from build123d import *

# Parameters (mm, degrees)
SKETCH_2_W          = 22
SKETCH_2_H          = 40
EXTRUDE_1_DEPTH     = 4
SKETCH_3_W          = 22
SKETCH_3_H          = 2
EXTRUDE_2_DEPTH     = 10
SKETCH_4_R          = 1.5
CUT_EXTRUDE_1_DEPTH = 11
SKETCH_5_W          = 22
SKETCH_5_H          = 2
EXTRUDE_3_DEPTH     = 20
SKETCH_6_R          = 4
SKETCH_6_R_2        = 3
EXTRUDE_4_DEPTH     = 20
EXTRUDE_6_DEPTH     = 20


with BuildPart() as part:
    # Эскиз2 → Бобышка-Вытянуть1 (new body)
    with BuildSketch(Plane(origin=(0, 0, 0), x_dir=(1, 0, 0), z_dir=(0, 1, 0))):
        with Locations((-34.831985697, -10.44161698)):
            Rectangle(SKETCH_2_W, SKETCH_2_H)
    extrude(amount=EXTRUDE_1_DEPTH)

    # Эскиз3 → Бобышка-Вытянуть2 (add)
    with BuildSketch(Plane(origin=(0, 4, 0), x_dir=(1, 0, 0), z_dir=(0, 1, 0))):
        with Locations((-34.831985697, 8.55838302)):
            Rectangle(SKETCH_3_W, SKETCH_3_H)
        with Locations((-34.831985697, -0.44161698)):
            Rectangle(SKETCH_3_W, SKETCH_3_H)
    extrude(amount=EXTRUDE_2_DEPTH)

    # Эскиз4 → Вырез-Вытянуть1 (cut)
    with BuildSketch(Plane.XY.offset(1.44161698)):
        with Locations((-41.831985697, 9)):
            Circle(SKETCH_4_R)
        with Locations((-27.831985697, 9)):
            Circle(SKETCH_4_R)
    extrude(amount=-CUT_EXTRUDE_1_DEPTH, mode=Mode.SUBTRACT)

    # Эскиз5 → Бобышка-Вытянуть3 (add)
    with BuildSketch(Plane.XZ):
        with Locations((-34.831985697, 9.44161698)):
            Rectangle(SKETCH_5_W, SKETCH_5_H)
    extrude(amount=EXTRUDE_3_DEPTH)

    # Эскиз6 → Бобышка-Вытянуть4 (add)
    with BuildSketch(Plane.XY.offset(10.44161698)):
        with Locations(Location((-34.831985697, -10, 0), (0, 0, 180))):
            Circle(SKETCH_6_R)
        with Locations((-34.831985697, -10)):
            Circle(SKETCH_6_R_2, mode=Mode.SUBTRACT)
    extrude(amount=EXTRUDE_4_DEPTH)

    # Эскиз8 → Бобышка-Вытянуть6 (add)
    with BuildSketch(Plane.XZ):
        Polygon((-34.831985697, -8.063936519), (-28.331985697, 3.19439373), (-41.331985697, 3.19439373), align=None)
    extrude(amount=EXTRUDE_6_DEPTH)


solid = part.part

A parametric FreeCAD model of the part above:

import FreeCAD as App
import Part
import Sketcher
Q = App.Units.Quantity


def add_polygon(sketch, points):
    """Adds a closed chain of lines whose ends are joined by coincident constraints."""
    first, n = sketch.GeometryCount, len(points)
    for a, b in zip(points, points[1:] + points[:1]):
        sketch.addGeometry(Part.LineSegment(App.Vector(*a, 0), App.Vector(*b, 0)), False)
    for i in range(n):
        sketch.addConstraint(Sketcher.Constraint("Coincident", first + i, 2, first + (i + 1) % n, 1))

doc = App.newDocument("Part")
body = doc.addObject("PartDesign::Body", "Body")

sketch1 = body.newObject("Sketcher::SketchObject", "Sketch")
sketch1.AttachmentSupport = (doc.getObject("XZ_Plane"), [""])
sketch1.MapMode = "FlatFace"
add_polygon(sketch1, [(-46, -10), (-46, 30), (-24, 30), (-24, -10)])
sketch1.addConstraint([
    Sketcher.Constraint("Vertical", 0),
    Sketcher.Constraint("Horizontal", 1),
    Sketcher.Constraint("Vertical", 2),
    Sketcher.Constraint("Horizontal", 3),
    Sketcher.Constraint("DistanceX", 1, 1, 1, 2, 22.0),
    Sketcher.Constraint("DistanceY", 0, 1, 0, 2, 40.0),
    Sketcher.Constraint("DistanceX", 0, 2, -1, 1, 45.831986),
    Sketcher.Constraint("DistanceY", -1, 1, 0, 2, 30.441617),
])
pad1 = body.newObject("PartDesign::Pad", "Pad")
pad1.Profile = sketch1
pad1.Length = 4
pad1.Reversed = True

sketch2 = body.newObject("Sketcher::SketchObject", "Sketch001")
sketch2.AttachmentSupport = (doc.getObject("XZ_Plane"), [""])
sketch2.MapMode = "FlatFace"
sketch2.AttachmentOffset = App.Placement(App.Vector(0, 0, -4), App.Rotation())
add_polygon(sketch2, [(-45.8, -9.6), (-45.8, -7.6), (-23.8, -7.6), (-23.8, -9.6)])
add_polygon(sketch2, [(-45.8, -0.6), (-45.8, 1.4), (-23.8, 1.4), (-23.8, -0.6)])
sketch2.addConstraint([
    Sketcher.Constraint("Vertical", 0),
    Sketcher.Constraint("Horizontal", 1),
    Sketcher.Constraint("Vertical", 2),
    Sketcher.Constraint("Horizontal", 3),
    Sketcher.Constraint("Vertical", 4),
    Sketcher.Constraint("Horizontal", 5),
    Sketcher.Constraint("Vertical", 6),
    Sketcher.Constraint("Horizontal", 7),
    Sketcher.Constraint("Vertical", 3, 2, 4, 2),
    Sketcher.Constraint("Vertical", 2, 2, 5, 2),
    Sketcher.Constraint("Equal", 2, 4),
    Sketcher.Constraint("DistanceX", 1, 1, 1, 2, 22.0),
    Sketcher.Constraint("DistanceY", 0, 1, 0, 2, 2.0),
    Sketcher.Constraint("DistanceY", 0, 2, 4, 2, 9.0),
    Sketcher.Constraint("DistanceX", 0, 2, -1, 1, 45.831986),
    Sketcher.Constraint("DistanceY", 0, 2, -1, 1, 7.558383),
])
pad2 = body.newObject("PartDesign::Pad", "Pad001")
pad2.Profile = sketch2
pad2.Length = 10
pad2.Reversed = True

sketch3 = body.newObject("Sketcher::SketchObject", "Sketch002")
sketch3.AttachmentSupport = (doc.getObject("XY_Plane"), [""])
sketch3.MapMode = "FlatFace"
sketch3.AttachmentOffset = App.Placement(App.Vector(0, 0, 1.441617), App.Rotation())
sketch3.addGeometry([
    Part.Circle(App.Vector(-41.8, 9, 0), App.Vector(0, 0, 1), 1.5),
    Part.Circle(App.Vector(-27.8, 9, 0), App.Vector(0, 0, 1), 1.5),
], False)
sketch3.addConstraint([
    Sketcher.Constraint("Equal", 0, 1),
    Sketcher.Constraint("Horizontal", 0, 3, 1, 3),
    Sketcher.Constraint("Diameter", 0, 3.0),
    Sketcher.Constraint("DistanceY", -1, 1, 0, 3, 9.0),
    Sketcher.Constraint("DistanceX", 0, 3, 1, 3, 14.0),
    Sketcher.Constraint("DistanceX", 0, 3, -1, 1, 41.831986),
])
pocket1 = body.newObject("PartDesign::Pocket", "Pocket")
pocket1.Profile = sketch3
pocket1.Length = 11

sketch4 = body.newObject("Sketcher::SketchObject", "Sketch003")
sketch4.AttachmentSupport = (doc.getObject("XZ_Plane"), [""])
sketch4.MapMode = "FlatFace"
add_polygon(sketch4, [(-45.8, 10.4), (-45.8, 8.4), (-23.8, 8.4), (-23.8, 10.4)])
sketch4.addConstraint([
    Sketcher.Constraint("Vertical", 0),
    Sketcher.Constraint("Horizontal", 1),
    Sketcher.Constraint("Vertical", 2),
    Sketcher.Constraint("Horizontal", 3),
    Sketcher.Constraint("DistanceX", 1, 1, 1, 2, 22.0),
    Sketcher.Constraint("DistanceY", 0, 2, 0, 1, 2.0),
    Sketcher.Constraint("DistanceX", 0, 2, -1, 1, 45.831986),
    Sketcher.Constraint("DistanceY", -1, 1, 0, 2, 8.441617),
])
pad3 = body.newObject("PartDesign::Pad", "Pad002")
pad3.Profile = sketch4
pad3.Length = 20

sketch5 = body.newObject("Sketcher::SketchObject", "Sketch004")
sketch5.AttachmentSupport = (doc.getObject("XY_Plane"), [""])
sketch5.MapMode = "FlatFace"
sketch5.AttachmentOffset = App.Placement(App.Vector(0, 0, 10.441617), App.Rotation())
sketch5.addGeometry([
    Part.Circle(App.Vector(-34.8, -10, 0), App.Vector(0, 0, 1), 4),
    Part.Circle(App.Vector(-34.8, -10, 0), App.Vector(0, 0, 1), 3),
], False)
sketch5.addConstraint([
    Sketcher.Constraint("Coincident", 1, 3, 0, 3),
    Sketcher.Constraint("Diameter", 0, 8.0),
    Sketcher.Constraint("Diameter", 1, 6.0),
    Sketcher.Constraint("DistanceY", 0, 3, -1, 1, 10.0),
    Sketcher.Constraint("DistanceX", 0, 3, -1, 1, 34.831986),
])
pad4 = body.newObject("PartDesign::Pad", "Pad003")
pad4.Profile = sketch5
pad4.Length = 20

sketch6 = body.newObject("Sketcher::SketchObject", "Sketch005")
sketch6.AttachmentSupport = (doc.getObject("XZ_Plane"), [""])
sketch6.MapMode = "FlatFace"
add_polygon(sketch6, [(-35, -8), (-28, 3), (-41, 3)])
sketch6.addConstraint([
    Sketcher.Constraint("Horizontal", 1),
    Sketcher.Constraint("Equal", 0, 2),
    Sketcher.Constraint("DistanceX", 1, 2, 1, 1, 13.0),
    Sketcher.Constraint("Angle", 0, Q("60 deg")),
    Sketcher.Constraint("DistanceX", 0, 2, -1, 1, 28.331986),
    Sketcher.Constraint("DistanceY", -1, 1, 0, 2, 3.194394),
])
pad5 = body.newObject("PartDesign::Pad", "Pad004")
pad5.Profile = sketch6
pad5.Length = 20

doc.recompute()
